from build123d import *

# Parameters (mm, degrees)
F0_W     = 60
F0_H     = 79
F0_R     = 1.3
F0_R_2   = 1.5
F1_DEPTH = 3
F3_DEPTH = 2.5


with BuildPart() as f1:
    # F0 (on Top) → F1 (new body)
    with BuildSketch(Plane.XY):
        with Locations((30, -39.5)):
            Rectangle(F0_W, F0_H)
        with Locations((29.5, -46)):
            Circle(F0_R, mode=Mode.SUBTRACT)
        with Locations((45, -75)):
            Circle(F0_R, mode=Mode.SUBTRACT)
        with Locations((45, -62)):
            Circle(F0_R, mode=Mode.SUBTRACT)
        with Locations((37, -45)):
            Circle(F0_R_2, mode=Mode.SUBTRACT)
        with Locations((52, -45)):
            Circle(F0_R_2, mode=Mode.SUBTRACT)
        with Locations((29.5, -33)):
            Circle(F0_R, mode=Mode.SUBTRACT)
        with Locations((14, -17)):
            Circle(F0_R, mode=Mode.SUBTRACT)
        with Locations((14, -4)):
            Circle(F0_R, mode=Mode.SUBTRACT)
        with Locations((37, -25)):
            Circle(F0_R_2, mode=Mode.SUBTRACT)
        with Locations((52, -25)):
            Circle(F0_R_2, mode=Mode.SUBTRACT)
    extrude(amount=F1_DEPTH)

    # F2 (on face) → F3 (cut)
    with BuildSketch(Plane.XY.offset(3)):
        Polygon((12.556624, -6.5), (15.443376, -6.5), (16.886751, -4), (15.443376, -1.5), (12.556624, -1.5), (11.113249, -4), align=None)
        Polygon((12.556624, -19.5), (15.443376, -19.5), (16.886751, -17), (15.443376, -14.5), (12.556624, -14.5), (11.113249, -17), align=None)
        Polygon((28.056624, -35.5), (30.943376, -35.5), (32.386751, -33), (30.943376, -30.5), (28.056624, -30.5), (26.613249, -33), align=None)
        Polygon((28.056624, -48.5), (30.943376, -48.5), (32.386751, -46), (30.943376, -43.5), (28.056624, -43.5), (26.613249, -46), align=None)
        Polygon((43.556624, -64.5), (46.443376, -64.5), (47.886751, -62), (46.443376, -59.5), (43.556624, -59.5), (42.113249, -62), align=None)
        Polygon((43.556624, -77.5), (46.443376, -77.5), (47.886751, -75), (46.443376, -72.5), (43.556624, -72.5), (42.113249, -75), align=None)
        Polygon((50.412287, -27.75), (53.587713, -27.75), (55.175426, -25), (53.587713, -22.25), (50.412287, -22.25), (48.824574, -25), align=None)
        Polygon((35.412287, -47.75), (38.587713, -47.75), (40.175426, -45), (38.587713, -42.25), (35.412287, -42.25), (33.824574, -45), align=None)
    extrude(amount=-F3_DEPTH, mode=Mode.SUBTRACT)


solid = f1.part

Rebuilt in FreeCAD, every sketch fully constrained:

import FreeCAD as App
import Part
import Sketcher
Q = App.Units.Quantity


def add_polygon(sketch, points):
    """Adds a closed chain of lines whose ends are joined by coincident constraints."""
    first, n = sketch.GeometryCount, len(points)
    for a, b in zip(points, points[1:] + points[:1]):
        sketch.addGeometry(Part.LineSegment(App.Vector(*a, 0), App.Vector(*b, 0)), False)
    for i in range(n):
        sketch.addConstraint(Sketcher.Constraint("Coincident", first + i, 2, first + (i + 1) % n, 1))

doc = App.newDocument("Part")
body = doc.addObject("PartDesign::Body", "Body")

# Sketch on XY plane
sketch1 = body.newObject("Sketcher::SketchObject", "Sketch")
sketch1.AttachmentSupport = (doc.getObject("XY_Plane"), [""])
sketch1.MapMode = "FlatFace"
add_polygon(sketch1, [(0, 0), (0, -79), (60, -79), (60, 0)])  # lines 0-3
sketch1.addGeometry(Part.Circle(App.Vector(29.5, -46, 0), App.Vector(0, 0, 1), 1.3), False)  # 4
sketch1.addGeometry(Part.Circle(App.Vector(45, -75, 0), App.Vector(0, 0, 1), 1.3), False)  # 5
sketch1.addGeometry(Part.Circle(App.Vector(45, -62, 0), App.Vector(0, 0, 1), 1.3), False)  # 6
sketch1.addGeometry(Part.Circle(App.Vector(37, -45, 0), App.Vector(0, 0, 1), 1.5), False)  # 7
sketch1.addGeometry(Part.Circle(App.Vector(52, -45, 0), App.Vector(0, 0, 1), 1.5), False)  # 8
sketch1.addGeometry(Part.Circle(App.Vector(29.5, -33, 0), App.Vector(0, 0, 1), 1.3), False)  # 9
sketch1.addGeometry(Part.Circle(App.Vector(14, -17, 0), App.Vector(0, 0, 1), 1.3), False)  # 10
sketch1.addGeometry(Part.Circle(App.Vector(14, -4, 0), App.Vector(0, 0, 1), 1.3), False)  # 11
sketch1.addGeometry(Part.Circle(App.Vector(37, -25, 0), App.Vector(0, 0, 1), 1.5), False)  # 12
sketch1.addGeometry(Part.Circle(App.Vector(52, -25, 0), App.Vector(0, 0, 1), 1.5), False)  # 13
sketch1.addConstraint([
    Sketcher.Constraint("Vertical", 0),
    Sketcher.Constraint("Horizontal", 1),
    Sketcher.Constraint("Vertical", 2),
    Sketcher.Constraint("Horizontal", 3),
    Sketcher.Constraint("Coincident", 3, 2, -1, 1),
    Sketcher.Constraint("Equal", 4, 5),
    Sketcher.Constraint("Equal", 5, 6),
    Sketcher.Constraint("Equal", 7, 8),
    Sketcher.Constraint("Equal", 6, 9),
    Sketcher.Constraint("Equal", 9, 10),
    Sketcher.Constraint("Equal", 10, 11),
    Sketcher.Constraint("Equal", 8, 12),
    Sketcher.Constraint("Equal", 12, 13),
    Sketcher.Constraint("Horizontal", 7, 3, 8, 3),
    Sketcher.Constraint("Horizontal", 12, 3, 13, 3),
    Sketcher.Constraint("Vertical", 5, 3, 6, 3),
    Sketcher.Constraint("Vertical", 4, 3, 9, 3),
    Sketcher.Constraint("Vertical", 10, 3, 11, 3),
    Sketcher.Constraint("Vertical", 7, 3, 12, 3),
    Sketcher.Constraint("Vertical", 8, 3, 13, 3),
    Sketcher.Constraint("Diameter", 7, 3.0),
    Sketcher.Constraint("Diameter", 4, 2.6),
    Sketcher.Constraint("DistanceX", 1, 1, 1, 2, 60.0),
    Sketcher.Constraint("DistanceY", 0, 2, 0, 1, 79.0),
    Sketcher.Constraint("DistanceY", 4, 3, -1, 1, 46.0),
    Sketcher.Constraint("DistanceX", -1, 1, 5, 3, 45.0),
    Sketcher.Constraint("DistanceY", 5, 3, -1, 1, 75.0),
    Sketcher.Constraint("DistanceY", 6, 3, -1, 1, 62.0),
    Sketcher.Constraint("DistanceX", -1, 1, 7, 3, 37.0),
    Sketcher.Constraint("DistanceY", 7, 3, -1, 1, 45.0),
    Sketcher.Constraint("DistanceX", -1, 1, 8, 3, 52.0),
    Sketcher.Constraint("DistanceY", 9, 3, -1, 1, 33.0),
    Sketcher.Constraint("DistanceX", -1, 1, 10, 3, 14.0),
    Sketcher.Constraint("DistanceY", 10, 3, -1, 1, 17.0),
    Sketcher.Constraint("DistanceY", 11, 3, -1, 1, 4.0),
    Sketcher.Constraint("DistanceY", 12, 3, -1, 1, 25.0),
    Sketcher.Constraint("DistanceX", -1, 1, 4, 3, 29.5),
])
pad1 = body.newObject("PartDesign::Pad", "Pad")
pad1.Profile = sketch1
pad1.Length = 3

# Sketch on XY plane
sketch2 = body.newObject("Sketcher::SketchObject", "Sketch001")
sketch2.AttachmentSupport = (doc.getObject("XY_Plane"), [""])
sketch2.MapMode = "FlatFace"
sketch2.AttachmentOffset = App.Placement(App.Vector(0, 0, 3), App.Rotation())
add_polygon(sketch2, [(12.556624, -6.5), (15.443376, -6.5), (16.886751, -4), (15.443376, -1.5), (12.556624, -1.5), (11.113249, -4)])  # lines 0-5
add_polygon(sketch2, [(12.556624, -19.5), (15.443376, -19.5), (16.886751, -17), (15.443376, -14.5), (12.556624, -14.5), (11.113249, -17)])  # lines 6-11
add_polygon(sketch2, [(28.056624, -35.5), (30.943376, -35.5), (32.386751, -33), (30.943376, -30.5), (28.056624, -30.5), (26.613249, -33)])  # lines 12-17
add_polygon(sketch2, [(28.056624, -48.5), (30.943376, -48.5), (32.386751, -46), (30.943376, -43.5), (28.056624, -43.5), (26.613249, -46)])  # lines 18-23
add_polygon(sketch2, [(43.556624, -64.5), (46.443376, -64.5), (47.886751, -62), (46.443376, -59.5), (43.556624, -59.5), (42.113249, -62)])  # lines 24-29
add_polygon(sketch2, [(43.556624, -77.5), (46.443376, -77.5), (47.886751, -75), (46.443376, -72.5), (43.556624, -72.5), (42.113249, -75)])  # lines 30-35
add_polygon(sketch2, [(50.412287, -27.75), (53.587713, -27.75), (55.175426, -25), (53.587713, -22.25), (50.412287, -22.25), (48.824574, -25)])  # lines 36-41
add_polygon(sketch2, [(35.412287, -47.75), (38.587713, -47.75), (40.175426, -45), (38.587713, -42.25), (35.412287, -42.25), (33.824574, -45)])  # lines 42-47
sketch2.addConstraint([
    Sketcher.Constraint("Horizontal", 0),
    Sketcher.Constraint("Horizontal", 3),
    Sketcher.Constraint("Horizontal", 6),
    Sketcher.Constraint("Horizontal", 9),
    Sketcher.Constraint("Horizontal", 12),
    Sketcher.Constraint("Horizontal", 15),
    Sketcher.Constraint("Horizontal", 18),
    Sketcher.Constraint("Horizontal", 21),
    Sketcher.Constraint("Horizontal", 24),
    Sketcher.Constraint("Horizontal", 27),
    Sketcher.Constraint("Horizontal", 30),
    Sketcher.Constraint("Horizontal", 33),
    Sketcher.Constraint("Horizontal", 36),
    Sketcher.Constraint("Horizontal", 39),
    Sketcher.Constraint("Horizontal", 42),
    Sketcher.Constraint("Horizontal", 45),
    Sketcher.Constraint("Parallel", 1, 4),
    Sketcher.Constraint("Parallel", 2, 5),
    Sketcher.Constraint("Parallel", 4, 7),
    Sketcher.Constraint("Parallel", 5, 8),
    Sketcher.Constraint("Parallel", 7, 10),
    Sketcher.Constraint("Parallel", 8, 11),
    Sketcher.Constraint("Parallel", 10, 13),
    Sketcher.Constraint("Parallel", 11, 14),
    Sketcher.Constraint("Parallel", 13, 16),
    Sketcher.Constraint("Parallel", 14, 17),
    Sketcher.Constraint("Parallel", 16, 19),
    Sketcher.Constraint("Parallel", 17, 20),
    Sketcher.Constraint("Parallel", 19, 22),
    Sketcher.Constraint("Parallel", 20, 23),
    Sketcher.Constraint("Parallel", 22, 25),
    Sketcher.Constraint("Parallel", 23, 26),
    Sketcher.Constraint("Parallel", 25, 28),
    Sketcher.Constraint("Parallel", 26, 29),
    Sketcher.Constraint("Parallel", 28, 31),
    Sketcher.Constraint("Parallel", 29, 32),
    Sketcher.Constraint("Parallel", 31, 34),
    Sketcher.Constraint("Parallel", 32, 35),
    Sketcher.Constraint("Parallel", 34, 37),
    Sketcher.Constraint("Parallel", 35, 38),
    Sketcher.Constraint("Parallel", 37, 40),
    Sketcher.Constraint("Parallel", 38, 41),
    Sketcher.Constraint("Parallel", 40, 43),
    Sketcher.Constraint("Parallel", 41, 44),
    Sketcher.Constraint("Parallel", 43, 46),
    Sketcher.Constraint("Parallel", 44, 47),
    Sketcher.Constraint("Horizontal", 1, 2, 4, 2),
    Sketcher.Constraint("Horizontal", 7, 2, 10, 2),
    Sketcher.Constraint("Horizontal", 13, 2, 16, 2),
    Sketcher.Constraint("Horizontal", 19, 2, 22, 2),
    Sketcher.Constraint("Horizontal", 25, 2, 28, 2),
    Sketcher.Constraint("Horizontal", 31, 2, 34, 2),
    Sketcher.Constraint("Horizontal", 37, 2, 40, 2),
    Sketcher.Constraint("Horizontal", 43, 2, 46, 2),
    Sketcher.Constraint("Vertical", 0, 2, 2, 2),
    Sketcher.Constraint("Vertical", 3, 2, 5, 2),
    Sketcher.Constraint("Vertical", 2, 2, 6, 2),
    Sketcher.Constraint("Vertical", 1, 2, 7, 2),
    Sketcher.Constraint("Vertical", 6, 2, 8, 2),
    Sketcher.Constraint("Vertical", 5, 2, 9, 2),
    Sketcher.Constraint("Vertical", 12, 2, 14, 2),
    Sketcher.Constraint("Vertical", 14, 2, 18, 2),
    Sketcher.Constraint("Vertical", 13, 2, 19, 2),
    Sketcher.Constraint("Vertical", 18, 2, 20, 2),
    Sketcher.Constraint("Vertical", 17, 2, 21, 2),
    Sketcher.Constraint("Vertical", 24, 2, 26, 2),
    Sketcher.Constraint("Vertical", 26, 2, 30, 2),
    Sketcher.Constraint("Vertical", 25, 2, 31, 2),
    Sketcher.Constraint("Vertical", 30, 2, 32, 2),
    Sketcher.Constraint("Vertical", 29, 2, 33, 2),
    Sketcher.Constraint("Vertical", 36, 2, 38, 2),
    Sketcher.Constraint("Vertical", 42, 2, 44, 2),
    Sketcher.Constraint("Equal", 9, 12),
    Sketcher.Constraint("Equal", 21, 24),
    Sketcher.Constraint("Equal", 39, 42),
    Sketcher.Constraint("Equal", 11, 13),
    Sketcher.Constraint("Equal", 23, 25),
    Sketcher.Constraint("Equal", 41, 43),
    Sketcher.Constraint("Angle", 1, Q("60.000012 deg")),
    Sketcher.Constraint("DistanceY", 1, 2, -1, 1, 4.0),
    Sketcher.Constraint("DistanceY", 7, 2, -1, 1, 17.0),
    Sketcher.Constraint("DistanceY", 13, 2, -1, 1, 33.0),
    Sketcher.Constraint("DistanceY", 19, 2, -1, 1, 46.0),
    Sketcher.Constraint("DistanceY", 25, 2, -1, 1, 62.0),
    Sketcher.Constraint("DistanceY", 31, 2, -1, 1, 75.0),
    Sketcher.Constraint("DistanceY", 37, 2, -1, 1, 25.0),
    Sketcher.Constraint("DistanceY", 43, 2, -1, 1, 45.0),
    Sketcher.Constraint("DistanceY", 0, 2, 2, 2, 5.0),
    Sketcher.Constraint("DistanceX", 6, 2, 12, 2, 15.5),
    Sketcher.Constraint("DistanceX", 18, 2, 24, 2, 15.5),
    Sketcher.Constraint("DistanceY", 36, 2, 38, 2, 5.5),
    Sketcher.Constraint("DistanceX", 16, 2, 13, 2, 5.773502),
    Sketcher.Constraint("DistanceX", 36, 1, 36, 2, 3.175426),
    Sketcher.Constraint("DistanceX", -1, 1, 1, 2, 16.886751),
    Sketcher.Constraint("DistanceX", 15, 2, 36, 2, 25.531089),
    Sketcher.Constraint("DistanceX", 23, 2, 42, 2, 10.531089),
])
pocket1 = body.newObject("PartDesign::Pocket", "Pocket")
pocket1.Profile = sketch2
pocket1.Length = 2.5

doc.recompute()
